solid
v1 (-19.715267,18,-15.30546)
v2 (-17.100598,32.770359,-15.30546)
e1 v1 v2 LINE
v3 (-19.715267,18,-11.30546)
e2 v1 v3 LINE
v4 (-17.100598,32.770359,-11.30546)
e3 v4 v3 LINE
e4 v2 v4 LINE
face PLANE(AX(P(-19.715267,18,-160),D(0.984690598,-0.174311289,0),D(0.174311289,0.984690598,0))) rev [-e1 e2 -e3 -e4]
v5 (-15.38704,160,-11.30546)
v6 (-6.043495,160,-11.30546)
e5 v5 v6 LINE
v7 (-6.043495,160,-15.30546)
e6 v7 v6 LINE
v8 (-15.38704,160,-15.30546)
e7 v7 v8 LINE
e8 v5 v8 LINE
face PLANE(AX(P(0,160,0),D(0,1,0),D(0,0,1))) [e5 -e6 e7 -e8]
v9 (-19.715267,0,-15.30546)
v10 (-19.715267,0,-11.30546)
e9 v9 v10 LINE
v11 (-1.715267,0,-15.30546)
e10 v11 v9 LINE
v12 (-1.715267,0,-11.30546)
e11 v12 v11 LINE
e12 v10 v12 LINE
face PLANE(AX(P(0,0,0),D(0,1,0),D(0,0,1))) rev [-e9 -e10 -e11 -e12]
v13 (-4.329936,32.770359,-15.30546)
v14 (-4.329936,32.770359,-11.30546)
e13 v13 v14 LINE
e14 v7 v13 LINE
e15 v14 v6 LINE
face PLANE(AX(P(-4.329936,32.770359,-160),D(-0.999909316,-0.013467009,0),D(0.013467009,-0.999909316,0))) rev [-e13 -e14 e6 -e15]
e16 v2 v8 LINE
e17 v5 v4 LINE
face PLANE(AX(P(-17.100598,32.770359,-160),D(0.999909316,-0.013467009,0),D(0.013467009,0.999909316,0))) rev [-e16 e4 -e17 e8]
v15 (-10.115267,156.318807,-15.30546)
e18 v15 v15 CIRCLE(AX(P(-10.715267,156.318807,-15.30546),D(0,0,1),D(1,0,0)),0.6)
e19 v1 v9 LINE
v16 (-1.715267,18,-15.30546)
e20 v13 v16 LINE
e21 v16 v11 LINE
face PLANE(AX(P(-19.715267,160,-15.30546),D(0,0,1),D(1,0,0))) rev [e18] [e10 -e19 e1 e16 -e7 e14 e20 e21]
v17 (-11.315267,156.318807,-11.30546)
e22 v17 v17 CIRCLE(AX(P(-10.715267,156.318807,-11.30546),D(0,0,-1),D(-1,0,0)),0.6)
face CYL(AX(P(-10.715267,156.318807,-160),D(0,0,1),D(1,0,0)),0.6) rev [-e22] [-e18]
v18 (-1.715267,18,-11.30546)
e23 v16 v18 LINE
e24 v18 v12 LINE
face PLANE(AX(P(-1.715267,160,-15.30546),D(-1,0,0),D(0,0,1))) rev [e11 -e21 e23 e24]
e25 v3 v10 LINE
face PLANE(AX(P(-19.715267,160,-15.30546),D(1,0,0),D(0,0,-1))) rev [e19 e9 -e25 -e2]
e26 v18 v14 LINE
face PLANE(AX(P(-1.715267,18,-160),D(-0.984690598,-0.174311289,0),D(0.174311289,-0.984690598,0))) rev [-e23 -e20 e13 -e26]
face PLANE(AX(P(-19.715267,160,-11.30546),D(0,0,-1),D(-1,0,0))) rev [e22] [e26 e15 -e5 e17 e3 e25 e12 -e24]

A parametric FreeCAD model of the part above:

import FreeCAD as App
import Part
import Sketcher
from FreeCAD import Vector

doc = App.newDocument("Part")
params = doc.addObject("Spreadsheet::Sheet", "Params")
for row, (alias, value) in enumerate([
    ("sketch1_width", "18 mm"),
    ("sketch1_height", "4 mm"),
    ("pad1_length", "160 mm"),
    ("sketch2_height", "142 mm"),
    ("sketch2_length", "15 mm"),
    ("pocket1_length", "160 mm"),
    ("sketch3_diameter", "1.2 mm"),
    ("pocket2_length", "160 mm"),
], start=1):
    params.set(f"A{row}", alias)
    params.set(f"B{row}", "=" + value)
    params.setAlias(f"B{row}", alias)

body = doc.addObject("PartDesign::Body", "Body")

# Sketch on XZ plane
sketch1 = body.newObject("Sketcher::SketchObject", "Sketch")
sketch1.AttachmentSupport = (doc.getObject("XZ_Plane"), [""])
sketch1.MapMode = "FlatFace"
sketch1.addGeometry([
    Part.LineSegment(Vector(-19.715267, -15.30546, 0), Vector(-19.715267, -11.30546, 0)),
    Part.LineSegment(Vector(-19.715267, -11.30546, 0), Vector(-1.715267, -11.30546, 0)),
    Part.LineSegment(Vector(-1.715267, -11.30546, 0), Vector(-1.715267, -15.30546, 0)),
    Part.LineSegment(Vector(-1.715267, -15.30546, 0), Vector(-19.715267, -15.30546, 0)),
], False)
sketch1.addConstraint([
    Sketcher.Constraint("Coincident", 0, 2, 1, 1),
    Sketcher.Constraint("Coincident", 1, 2, 2, 1),
    Sketcher.Constraint("Coincident", 2, 2, 3, 1),
    Sketcher.Constraint("Coincident", 3, 2, 0, 1),
    Sketcher.Constraint("Vertical", 0),
    Sketcher.Constraint("Horizontal", 1),
    Sketcher.Constraint("Vertical", 2),
    Sketcher.Constraint("Horizontal", 3),
    Sketcher.Constraint("DistanceX", 1, 1, 1, 2, 18.0),
    Sketcher.Constraint("DistanceY", 0, 1, 0, 2, 4.0),
    Sketcher.Constraint("DistanceY", 0, 2, -1, 1, 11.30546),
    Sketcher.Constraint("DistanceX", 0, 2, -1, 1, 19.715267),
])
sketch1.setExpression("Constraints[8]", "Params.sketch1_width")
sketch1.setExpression("Constraints[9]", "Params.sketch1_height")
pad1 = body.newObject("PartDesign::Pad", "Pad")
pad1.Profile = sketch1
pad1.setExpression("Length", "Params.pad1_length")
pad1.Reversed = True

# Sketch on XY plane
sketch2 = body.newObject("Sketcher::SketchObject", "Sketch001")
sketch2.AttachmentSupport = (doc.getObject("XY_Plane"), [""])
sketch2.MapMode = "FlatFace"
sketch2.addGeometry([
    Part.LineSegment(Vector(-19.715267, 160, 0), Vector(-19.715267, 18, 0)),  # 0
    Part.LineSegment(Vector(-19.715267, 18, 0), Vector(-17.100598, 32.770359, 0)),  # 1
    Part.LineSegment(Vector(-17.100598, 32.770359, 0), Vector(-15.38704, 160, 0)),  # 2
    Part.LineSegment(Vector(-15.38704, 160, 0), Vector(-19.715267, 160, 0)),  # 3
    Part.LineSegment(Vector(-6.043495, 160, 0), Vector(-4.329936, 32.770359, 0)),  # 4
    Part.LineSegment(Vector(-4.329936, 32.770359, 0), Vector(-1.715267, 18, 0)),  # 5
    Part.LineSegment(Vector(-1.715267, 18, 0), Vector(-1.715267, 160, 0)),  # 6
    Part.LineSegment(Vector(-1.715267, 160, 0), Vector(-6.043495, 160, 0)),  # 7
], False)
sketch2.addConstraint([
    Sketcher.Constraint("Coincident", 0, 2, 1, 1),
    Sketcher.Constraint("Coincident", 1, 2, 2, 1),
    Sketcher.Constraint("Coincident", 2, 2, 3, 1),
    Sketcher.Constraint("Coincident", 3, 2, 0, 1),
    Sketcher.Constraint("Coincident", 4, 2, 5, 1),
    Sketcher.Constraint("Coincident", 5, 2, 6, 1),
    Sketcher.Constraint("Coincident", 6, 2, 7, 1),
    Sketcher.Constraint("Coincident", 7, 2, 4, 1),
    Sketcher.Constraint("Vertical", 0),
    Sketcher.Constraint("Horizontal", 3),
    Sketcher.Constraint("Vertical", 6),
    Sketcher.Constraint("Horizontal", 7),
    Sketcher.Constraint("Horizontal", 1, 2, 4, 2),
    Sketcher.Constraint("Horizontal", 0, 2, 5, 2),
    Sketcher.Constraint("Horizontal", 3, 2, 6, 2),
    Sketcher.Constraint("Equal", 3, 7),
    Sketcher.Constraint("Equal", 2, 4),
    Sketcher.Constraint("DistanceY", 0, 2, 0, 1, 142.0),
    Sketcher.Constraint("Distance", 1, 15.0),
    Sketcher.Constraint("DistanceY", -1, 1, 0, 2, 18.0),
    Sketcher.Constraint("DistanceX", 0, 2, 5, 2, 18.0),
    Sketcher.Constraint("Distance", 2, 127.24118),
    Sketcher.Constraint("DistanceX", 3, 2, 3, 1, 4.328227),
    Sketcher.Constraint("DistanceX", 2, 2, -1, 1, 15.38704),
])
sketch2.setExpression("Constraints[17]", "Params.sketch2_height")
sketch2.setExpression("Constraints[18]", "Params.sketch2_length")
pocket1 = body.newObject("PartDesign::Pocket", "Pocket")
pocket1.Profile = sketch2
pocket1.setExpression("Length", "Params.pocket1_length")

# Sketch on XY plane
sketch3 = body.newObject("Sketcher::SketchObject", "Sketch002")
sketch3.AttachmentSupport = (doc.getObject("XY_Plane"), [""])
sketch3.MapMode = "FlatFace"
sketch3.addGeometry(Part.Circle(Vector(-10.715267, 156.318807, 0), Vector(0, 0, 1), 0.6), False)
sketch3.addConstraint([
    Sketcher.Constraint("Diameter", 0, 1.2),
    Sketcher.Constraint("DistanceX", 0, 3, -1, 1, 10.715267),
    Sketcher.Constraint("DistanceY", -1, 1, 0, 3, 156.318807),
])
sketch3.setExpression("Constraints[0]", "Params.sketch3_diameter")
pocket2 = body.newObject("PartDesign::Pocket", "Pocket001")
pocket2.Profile = sketch3
pocket2.setExpression("Length", "Params.pocket2_length")

doc.recompute()
